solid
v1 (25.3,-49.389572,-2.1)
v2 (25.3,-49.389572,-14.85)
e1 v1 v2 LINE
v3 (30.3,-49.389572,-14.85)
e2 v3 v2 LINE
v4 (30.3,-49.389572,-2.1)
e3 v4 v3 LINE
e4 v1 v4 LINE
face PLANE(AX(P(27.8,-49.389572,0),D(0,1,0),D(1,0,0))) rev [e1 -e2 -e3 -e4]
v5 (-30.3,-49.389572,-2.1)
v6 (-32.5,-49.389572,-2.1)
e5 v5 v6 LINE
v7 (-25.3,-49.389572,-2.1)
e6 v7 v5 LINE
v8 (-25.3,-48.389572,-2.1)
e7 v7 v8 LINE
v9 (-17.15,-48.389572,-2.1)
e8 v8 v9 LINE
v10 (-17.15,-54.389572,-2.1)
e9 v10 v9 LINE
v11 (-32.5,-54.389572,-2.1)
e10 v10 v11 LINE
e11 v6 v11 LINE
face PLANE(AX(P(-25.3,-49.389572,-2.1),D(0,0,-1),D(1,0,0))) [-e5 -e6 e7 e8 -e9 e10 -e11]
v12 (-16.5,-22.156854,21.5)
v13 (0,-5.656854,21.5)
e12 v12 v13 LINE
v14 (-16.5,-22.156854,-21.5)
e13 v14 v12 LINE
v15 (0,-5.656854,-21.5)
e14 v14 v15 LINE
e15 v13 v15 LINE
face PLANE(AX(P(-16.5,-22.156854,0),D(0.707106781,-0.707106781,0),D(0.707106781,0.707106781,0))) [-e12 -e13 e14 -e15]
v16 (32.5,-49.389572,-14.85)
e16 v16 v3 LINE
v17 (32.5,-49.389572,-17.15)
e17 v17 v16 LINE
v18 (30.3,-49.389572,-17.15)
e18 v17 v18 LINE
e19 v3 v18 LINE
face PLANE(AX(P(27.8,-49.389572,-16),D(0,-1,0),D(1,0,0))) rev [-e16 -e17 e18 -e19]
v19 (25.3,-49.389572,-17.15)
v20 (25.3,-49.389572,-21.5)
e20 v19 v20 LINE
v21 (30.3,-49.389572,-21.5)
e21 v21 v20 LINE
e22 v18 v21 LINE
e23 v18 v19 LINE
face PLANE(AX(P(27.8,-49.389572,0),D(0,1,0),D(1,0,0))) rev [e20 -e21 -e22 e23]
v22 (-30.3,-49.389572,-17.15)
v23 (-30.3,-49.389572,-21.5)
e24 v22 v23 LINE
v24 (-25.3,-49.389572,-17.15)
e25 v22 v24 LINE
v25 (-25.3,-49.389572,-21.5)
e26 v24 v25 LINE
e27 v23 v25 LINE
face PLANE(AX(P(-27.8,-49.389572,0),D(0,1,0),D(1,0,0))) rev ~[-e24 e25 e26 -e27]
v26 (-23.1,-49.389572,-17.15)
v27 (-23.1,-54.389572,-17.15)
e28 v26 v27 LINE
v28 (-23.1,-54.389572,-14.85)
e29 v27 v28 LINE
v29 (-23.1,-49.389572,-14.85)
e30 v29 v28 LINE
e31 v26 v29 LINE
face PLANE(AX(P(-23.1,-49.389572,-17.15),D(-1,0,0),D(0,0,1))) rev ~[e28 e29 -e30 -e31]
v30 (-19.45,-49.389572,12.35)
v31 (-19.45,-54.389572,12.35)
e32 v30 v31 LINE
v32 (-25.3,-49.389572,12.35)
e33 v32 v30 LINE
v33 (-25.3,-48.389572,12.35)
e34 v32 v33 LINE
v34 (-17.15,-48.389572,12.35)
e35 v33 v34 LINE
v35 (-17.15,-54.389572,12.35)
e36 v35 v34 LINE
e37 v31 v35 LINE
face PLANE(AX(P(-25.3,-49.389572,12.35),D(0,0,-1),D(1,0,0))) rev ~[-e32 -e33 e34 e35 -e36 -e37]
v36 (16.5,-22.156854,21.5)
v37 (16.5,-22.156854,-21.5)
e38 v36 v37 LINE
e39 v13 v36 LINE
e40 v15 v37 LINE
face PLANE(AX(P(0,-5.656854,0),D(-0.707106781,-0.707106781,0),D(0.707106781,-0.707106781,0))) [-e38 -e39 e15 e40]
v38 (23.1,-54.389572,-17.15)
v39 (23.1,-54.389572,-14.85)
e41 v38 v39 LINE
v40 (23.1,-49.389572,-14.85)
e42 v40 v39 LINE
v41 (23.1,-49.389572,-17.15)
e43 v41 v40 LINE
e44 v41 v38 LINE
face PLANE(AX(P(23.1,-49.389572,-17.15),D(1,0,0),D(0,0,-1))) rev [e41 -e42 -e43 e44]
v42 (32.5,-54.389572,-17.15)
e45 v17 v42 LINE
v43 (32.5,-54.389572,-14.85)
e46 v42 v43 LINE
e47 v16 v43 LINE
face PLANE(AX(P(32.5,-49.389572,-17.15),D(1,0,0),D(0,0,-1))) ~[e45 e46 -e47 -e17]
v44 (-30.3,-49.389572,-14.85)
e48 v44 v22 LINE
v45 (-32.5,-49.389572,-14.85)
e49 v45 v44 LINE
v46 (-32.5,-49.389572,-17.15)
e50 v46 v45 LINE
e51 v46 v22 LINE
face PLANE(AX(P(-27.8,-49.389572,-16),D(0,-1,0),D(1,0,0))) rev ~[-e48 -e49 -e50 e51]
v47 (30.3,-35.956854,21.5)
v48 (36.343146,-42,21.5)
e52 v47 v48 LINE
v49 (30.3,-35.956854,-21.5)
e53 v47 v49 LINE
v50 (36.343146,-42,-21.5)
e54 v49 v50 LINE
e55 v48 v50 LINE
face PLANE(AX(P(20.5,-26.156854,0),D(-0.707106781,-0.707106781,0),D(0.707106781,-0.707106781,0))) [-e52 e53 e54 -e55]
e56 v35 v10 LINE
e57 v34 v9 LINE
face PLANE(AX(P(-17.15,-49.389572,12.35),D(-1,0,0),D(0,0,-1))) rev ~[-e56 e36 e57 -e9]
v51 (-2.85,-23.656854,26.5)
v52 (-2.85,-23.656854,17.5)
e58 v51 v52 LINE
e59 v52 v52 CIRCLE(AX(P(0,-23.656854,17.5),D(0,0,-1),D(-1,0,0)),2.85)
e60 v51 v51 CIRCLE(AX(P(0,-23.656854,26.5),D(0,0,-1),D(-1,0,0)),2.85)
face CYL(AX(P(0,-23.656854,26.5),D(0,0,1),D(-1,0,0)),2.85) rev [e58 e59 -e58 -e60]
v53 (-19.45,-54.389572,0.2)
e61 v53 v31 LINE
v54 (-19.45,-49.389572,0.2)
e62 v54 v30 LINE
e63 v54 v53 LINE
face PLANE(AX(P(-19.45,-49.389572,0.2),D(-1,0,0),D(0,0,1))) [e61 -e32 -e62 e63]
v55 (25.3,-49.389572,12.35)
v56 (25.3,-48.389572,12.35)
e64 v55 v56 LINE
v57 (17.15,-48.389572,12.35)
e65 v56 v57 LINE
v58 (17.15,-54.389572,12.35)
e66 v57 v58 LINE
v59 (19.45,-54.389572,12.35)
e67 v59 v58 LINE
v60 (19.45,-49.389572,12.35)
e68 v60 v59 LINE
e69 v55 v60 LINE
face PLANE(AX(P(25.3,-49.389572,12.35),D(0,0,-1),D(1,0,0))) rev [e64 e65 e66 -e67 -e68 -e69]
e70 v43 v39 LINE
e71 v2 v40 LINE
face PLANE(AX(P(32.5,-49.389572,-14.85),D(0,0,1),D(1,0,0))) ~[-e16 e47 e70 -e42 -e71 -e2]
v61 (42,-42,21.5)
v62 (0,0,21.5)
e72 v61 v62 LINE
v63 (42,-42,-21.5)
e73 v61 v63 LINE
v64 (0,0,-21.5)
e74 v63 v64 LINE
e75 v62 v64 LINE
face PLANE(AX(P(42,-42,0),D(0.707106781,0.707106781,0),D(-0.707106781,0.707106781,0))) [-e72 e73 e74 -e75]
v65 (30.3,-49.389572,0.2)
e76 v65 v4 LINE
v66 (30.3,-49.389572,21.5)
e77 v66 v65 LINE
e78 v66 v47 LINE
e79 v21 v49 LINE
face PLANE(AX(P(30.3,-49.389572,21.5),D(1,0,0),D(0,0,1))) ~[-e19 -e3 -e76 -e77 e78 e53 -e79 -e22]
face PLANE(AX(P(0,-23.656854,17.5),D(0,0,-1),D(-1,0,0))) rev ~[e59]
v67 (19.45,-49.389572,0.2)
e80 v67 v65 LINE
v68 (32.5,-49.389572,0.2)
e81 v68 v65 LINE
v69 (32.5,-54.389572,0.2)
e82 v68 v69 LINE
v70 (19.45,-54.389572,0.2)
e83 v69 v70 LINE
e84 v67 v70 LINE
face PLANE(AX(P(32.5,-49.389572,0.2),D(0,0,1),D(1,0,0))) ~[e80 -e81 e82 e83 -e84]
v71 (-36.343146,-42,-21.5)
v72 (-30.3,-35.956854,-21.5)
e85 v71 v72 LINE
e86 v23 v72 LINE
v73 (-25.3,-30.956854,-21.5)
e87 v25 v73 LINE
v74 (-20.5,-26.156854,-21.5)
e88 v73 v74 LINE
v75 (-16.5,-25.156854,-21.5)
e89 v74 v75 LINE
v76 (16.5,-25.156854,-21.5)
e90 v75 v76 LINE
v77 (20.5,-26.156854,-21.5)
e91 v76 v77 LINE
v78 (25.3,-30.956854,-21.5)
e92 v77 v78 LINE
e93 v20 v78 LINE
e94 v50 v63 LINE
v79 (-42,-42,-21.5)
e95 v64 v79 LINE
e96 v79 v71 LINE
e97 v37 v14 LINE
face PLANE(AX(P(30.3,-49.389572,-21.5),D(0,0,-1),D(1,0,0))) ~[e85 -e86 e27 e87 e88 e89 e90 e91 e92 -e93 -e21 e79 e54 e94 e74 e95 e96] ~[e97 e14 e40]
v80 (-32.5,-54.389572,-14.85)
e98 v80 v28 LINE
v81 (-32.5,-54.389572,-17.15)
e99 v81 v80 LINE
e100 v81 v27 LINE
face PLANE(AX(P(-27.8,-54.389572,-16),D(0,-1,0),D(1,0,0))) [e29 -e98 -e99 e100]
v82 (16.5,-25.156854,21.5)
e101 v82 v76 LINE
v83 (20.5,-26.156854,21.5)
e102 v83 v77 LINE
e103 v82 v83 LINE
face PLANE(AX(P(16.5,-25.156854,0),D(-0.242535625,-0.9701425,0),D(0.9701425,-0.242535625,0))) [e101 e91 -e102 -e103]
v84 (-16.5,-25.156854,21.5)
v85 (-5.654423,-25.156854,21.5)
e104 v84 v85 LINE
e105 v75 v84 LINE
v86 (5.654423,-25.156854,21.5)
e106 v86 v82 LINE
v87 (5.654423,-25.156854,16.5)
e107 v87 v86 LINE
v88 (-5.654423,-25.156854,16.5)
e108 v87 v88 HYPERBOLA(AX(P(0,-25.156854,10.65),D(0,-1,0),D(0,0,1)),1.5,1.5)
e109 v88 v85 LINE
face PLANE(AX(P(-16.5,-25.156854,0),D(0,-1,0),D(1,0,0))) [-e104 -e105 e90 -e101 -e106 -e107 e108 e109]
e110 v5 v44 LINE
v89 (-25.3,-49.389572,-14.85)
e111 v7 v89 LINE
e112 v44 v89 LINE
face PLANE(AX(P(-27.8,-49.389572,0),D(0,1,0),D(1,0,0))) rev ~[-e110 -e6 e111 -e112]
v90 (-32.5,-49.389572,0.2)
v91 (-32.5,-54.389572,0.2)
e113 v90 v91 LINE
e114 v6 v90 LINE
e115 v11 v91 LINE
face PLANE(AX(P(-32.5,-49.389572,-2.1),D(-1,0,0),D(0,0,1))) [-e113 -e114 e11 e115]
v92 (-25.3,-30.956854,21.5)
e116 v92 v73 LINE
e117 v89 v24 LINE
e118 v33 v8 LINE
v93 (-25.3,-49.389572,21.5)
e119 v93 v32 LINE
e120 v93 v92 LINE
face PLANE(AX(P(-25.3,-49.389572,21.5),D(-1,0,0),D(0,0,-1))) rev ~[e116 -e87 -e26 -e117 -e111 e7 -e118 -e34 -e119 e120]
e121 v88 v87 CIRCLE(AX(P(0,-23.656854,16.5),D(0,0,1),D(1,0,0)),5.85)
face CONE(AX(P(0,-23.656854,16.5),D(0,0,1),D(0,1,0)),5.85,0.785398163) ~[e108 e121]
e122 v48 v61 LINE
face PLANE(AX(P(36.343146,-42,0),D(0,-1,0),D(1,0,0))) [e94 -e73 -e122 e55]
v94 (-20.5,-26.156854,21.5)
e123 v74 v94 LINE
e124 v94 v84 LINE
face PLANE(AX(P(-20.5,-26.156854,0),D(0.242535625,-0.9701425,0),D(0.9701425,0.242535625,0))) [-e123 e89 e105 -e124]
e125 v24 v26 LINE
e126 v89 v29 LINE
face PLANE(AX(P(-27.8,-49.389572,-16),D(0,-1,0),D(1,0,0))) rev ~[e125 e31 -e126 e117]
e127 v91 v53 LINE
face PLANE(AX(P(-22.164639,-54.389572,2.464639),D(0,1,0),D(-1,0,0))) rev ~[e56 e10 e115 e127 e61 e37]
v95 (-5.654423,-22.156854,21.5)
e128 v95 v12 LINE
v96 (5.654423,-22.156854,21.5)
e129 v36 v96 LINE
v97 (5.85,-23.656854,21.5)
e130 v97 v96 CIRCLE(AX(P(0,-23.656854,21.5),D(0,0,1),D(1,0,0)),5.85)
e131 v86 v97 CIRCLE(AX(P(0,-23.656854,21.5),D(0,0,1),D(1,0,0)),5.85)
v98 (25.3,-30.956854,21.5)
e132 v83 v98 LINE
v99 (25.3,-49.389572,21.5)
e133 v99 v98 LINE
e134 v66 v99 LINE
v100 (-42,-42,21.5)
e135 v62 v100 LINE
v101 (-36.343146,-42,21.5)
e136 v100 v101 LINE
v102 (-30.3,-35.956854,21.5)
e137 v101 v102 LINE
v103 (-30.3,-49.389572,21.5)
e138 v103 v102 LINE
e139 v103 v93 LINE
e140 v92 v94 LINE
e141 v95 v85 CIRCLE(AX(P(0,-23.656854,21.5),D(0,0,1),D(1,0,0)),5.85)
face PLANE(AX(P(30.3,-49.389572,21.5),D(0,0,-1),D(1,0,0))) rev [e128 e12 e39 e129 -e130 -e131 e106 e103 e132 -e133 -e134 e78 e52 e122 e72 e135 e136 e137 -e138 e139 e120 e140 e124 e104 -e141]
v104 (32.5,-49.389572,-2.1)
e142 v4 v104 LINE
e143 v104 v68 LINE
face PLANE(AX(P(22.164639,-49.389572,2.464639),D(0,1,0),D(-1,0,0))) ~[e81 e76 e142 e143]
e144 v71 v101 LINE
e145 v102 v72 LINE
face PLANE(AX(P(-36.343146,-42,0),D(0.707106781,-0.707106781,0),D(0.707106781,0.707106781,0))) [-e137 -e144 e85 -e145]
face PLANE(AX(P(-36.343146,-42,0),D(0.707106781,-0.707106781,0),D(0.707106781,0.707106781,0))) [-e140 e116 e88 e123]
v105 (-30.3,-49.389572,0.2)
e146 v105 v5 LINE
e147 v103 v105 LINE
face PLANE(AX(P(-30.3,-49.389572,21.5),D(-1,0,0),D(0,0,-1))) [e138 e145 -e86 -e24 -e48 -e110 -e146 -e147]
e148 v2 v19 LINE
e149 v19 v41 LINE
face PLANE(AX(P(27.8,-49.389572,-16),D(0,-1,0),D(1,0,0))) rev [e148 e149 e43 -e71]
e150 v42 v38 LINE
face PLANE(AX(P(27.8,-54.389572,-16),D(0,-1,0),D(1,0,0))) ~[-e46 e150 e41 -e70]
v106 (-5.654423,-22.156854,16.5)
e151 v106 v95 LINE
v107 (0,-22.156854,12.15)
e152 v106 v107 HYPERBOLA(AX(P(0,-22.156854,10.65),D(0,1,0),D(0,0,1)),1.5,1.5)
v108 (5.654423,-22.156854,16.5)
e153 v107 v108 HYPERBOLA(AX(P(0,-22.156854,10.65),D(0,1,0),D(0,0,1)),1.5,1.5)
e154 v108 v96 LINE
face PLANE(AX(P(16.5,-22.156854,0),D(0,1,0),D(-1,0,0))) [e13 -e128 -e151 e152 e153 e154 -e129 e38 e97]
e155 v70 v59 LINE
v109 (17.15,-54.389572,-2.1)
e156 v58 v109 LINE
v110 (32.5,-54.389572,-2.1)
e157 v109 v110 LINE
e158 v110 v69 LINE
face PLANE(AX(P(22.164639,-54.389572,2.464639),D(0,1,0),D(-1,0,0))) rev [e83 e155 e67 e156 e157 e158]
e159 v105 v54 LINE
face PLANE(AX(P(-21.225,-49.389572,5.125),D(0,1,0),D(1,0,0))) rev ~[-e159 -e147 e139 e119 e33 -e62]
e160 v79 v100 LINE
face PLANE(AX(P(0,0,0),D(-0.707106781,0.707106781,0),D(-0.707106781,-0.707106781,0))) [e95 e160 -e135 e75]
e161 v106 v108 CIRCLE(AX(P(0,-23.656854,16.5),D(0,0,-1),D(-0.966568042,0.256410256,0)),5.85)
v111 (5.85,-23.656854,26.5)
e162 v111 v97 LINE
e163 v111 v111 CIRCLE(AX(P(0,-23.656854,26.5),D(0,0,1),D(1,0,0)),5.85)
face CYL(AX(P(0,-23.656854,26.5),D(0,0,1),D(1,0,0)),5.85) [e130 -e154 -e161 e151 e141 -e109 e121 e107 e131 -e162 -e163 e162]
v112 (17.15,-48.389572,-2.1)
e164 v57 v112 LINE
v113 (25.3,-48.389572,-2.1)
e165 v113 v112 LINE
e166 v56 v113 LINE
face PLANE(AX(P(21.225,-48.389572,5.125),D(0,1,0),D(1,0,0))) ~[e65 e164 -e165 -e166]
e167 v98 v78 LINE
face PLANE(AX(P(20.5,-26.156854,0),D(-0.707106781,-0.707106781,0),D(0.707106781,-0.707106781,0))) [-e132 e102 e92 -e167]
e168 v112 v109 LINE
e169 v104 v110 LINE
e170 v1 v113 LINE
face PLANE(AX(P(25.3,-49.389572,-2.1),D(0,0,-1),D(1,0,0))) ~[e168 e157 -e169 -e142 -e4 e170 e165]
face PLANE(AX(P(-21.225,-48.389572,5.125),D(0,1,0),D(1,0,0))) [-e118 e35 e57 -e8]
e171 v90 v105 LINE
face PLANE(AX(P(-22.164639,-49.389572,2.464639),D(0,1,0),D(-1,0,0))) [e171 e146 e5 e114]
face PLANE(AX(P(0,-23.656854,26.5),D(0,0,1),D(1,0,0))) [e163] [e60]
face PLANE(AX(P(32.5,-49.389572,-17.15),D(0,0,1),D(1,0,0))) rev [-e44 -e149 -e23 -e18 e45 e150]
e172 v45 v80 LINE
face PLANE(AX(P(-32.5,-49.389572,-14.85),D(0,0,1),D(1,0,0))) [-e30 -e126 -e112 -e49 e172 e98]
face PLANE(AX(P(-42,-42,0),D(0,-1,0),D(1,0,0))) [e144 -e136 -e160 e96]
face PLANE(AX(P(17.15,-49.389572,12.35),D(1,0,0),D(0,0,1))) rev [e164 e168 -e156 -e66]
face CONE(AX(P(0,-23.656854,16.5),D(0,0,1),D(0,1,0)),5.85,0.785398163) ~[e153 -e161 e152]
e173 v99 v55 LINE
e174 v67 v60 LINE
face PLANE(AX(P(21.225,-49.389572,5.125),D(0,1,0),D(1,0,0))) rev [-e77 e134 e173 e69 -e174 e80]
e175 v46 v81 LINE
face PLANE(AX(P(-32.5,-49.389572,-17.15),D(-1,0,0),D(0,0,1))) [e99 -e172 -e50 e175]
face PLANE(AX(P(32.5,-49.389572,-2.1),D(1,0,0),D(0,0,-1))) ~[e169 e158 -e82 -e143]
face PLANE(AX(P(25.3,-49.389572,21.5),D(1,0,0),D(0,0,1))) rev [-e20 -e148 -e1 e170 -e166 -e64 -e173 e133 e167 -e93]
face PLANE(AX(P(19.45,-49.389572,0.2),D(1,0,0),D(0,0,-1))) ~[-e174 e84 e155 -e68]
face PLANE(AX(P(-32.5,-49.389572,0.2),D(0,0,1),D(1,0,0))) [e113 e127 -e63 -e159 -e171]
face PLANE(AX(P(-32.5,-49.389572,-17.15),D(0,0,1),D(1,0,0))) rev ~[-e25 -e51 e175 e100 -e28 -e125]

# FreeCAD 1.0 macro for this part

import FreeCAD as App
import Part
import Sketcher
from FreeCAD import Vector


def add_polygon(sketch, points):
    """Adds a closed chain of lines whose ends are joined by coincident constraints."""
    first, n = sketch.GeometryCount, len(points)
    for a, b in zip(points, points[1:] + points[:1]):
        sketch.addGeometry(Part.LineSegment(App.Vector(*a, 0), App.Vector(*b, 0)), False)
    for i in range(n):
        sketch.addConstraint(Sketcher.Constraint("Coincident", first + i, 2, first + (i + 1) % n, 1))

doc = App.newDocument("Part")
body = doc.addObject("PartDesign::Body", "Body")

# Sketch on XY plane
sketch1 = body.newObject("Sketcher::SketchObject", "Sketch")
sketch1.AttachmentSupport = (doc.getObject("XY_Plane"), [""])
sketch1.MapMode = "FlatFace"
add_polygon(sketch1, [(0, 0), (-42, -42), (-36.3, -42), (-20.5, -26.2), (-16.5, -25.2), (16.5, -25.2), (20.5, -26.2), (36.3, -42), (42, -42)])  # lines 0-8
add_polygon(sketch1, [(16.5, -22.2), (-16.5, -22.2), (0, -5.7)])  # lines 9-11
sketch1.addConstraint(Sketcher.Constraint("Horizontal", 1))
sketch1.addConstraint(Sketcher.Constraint("Horizontal", 4))
sketch1.addConstraint(Sketcher.Constraint("Horizontal", 7))
sketch1.addConstraint(Sketcher.Constraint("Horizontal", 9))
sketch1.addConstraint(Sketcher.Constraint("Coincident", 8, 2, -1, 1))
sketch1.addConstraint(Sketcher.Constraint("Symmetric", 2, 2, 5, 2, -2))
sketch1.addConstraint(Sketcher.Constraint("Symmetric", 1, 2, 6, 2, -2))
sketch1.addConstraint(Sketcher.Constraint("PointOnObject", 10, 2, -2))
sketch1.addConstraint(Sketcher.Constraint("Parallel", 0, 2))
sketch1.addConstraint(Sketcher.Constraint("Perpendicular", 2, 6))
sketch1.addConstraint(Sketcher.Constraint("Parallel", 6, 8))
sketch1.addConstraint(Sketcher.Constraint("Perpendicular", 8, 10))
sketch1.addConstraint(Sketcher.Constraint("Perpendicular", 10, 11))
sketch1.addConstraint(Sketcher.Constraint("Vertical", 3, 2, 9, 2))
sketch1.addConstraint(Sketcher.Constraint("Vertical", 4, 2, 11, 2))
sketch1.addConstraint(Sketcher.Constraint("DistanceX", 4, 1, 4, 2, 33.0))
sketch1.addConstraint(Sketcher.Constraint("DistanceX", 0, 2, -1, 1, 42.0))
sketch1.addConstraint(Sketcher.Constraint("DistanceX", 2, 2, 3, 2, 4.0))
sketch1.addConstraint(Sketcher.Constraint("DistanceY", 2, 2, 3, 2, 1.0))
sketch1.addConstraint(Sketcher.Constraint("DistanceY", 3, 2, 9, 2, 3.0))
sketch1.addConstraint(Sketcher.Constraint("Distance", 2, 22.405592))
pad1 = body.newObject("PartDesign::Pad", "Pad")
pad1.Profile = sketch1
pad1.Length = 43
pad1.Midplane = True

# Sketch on XY plane
sketch2 = body.newObject("Sketcher::SketchObject", "Sketch001")
sketch2.AttachmentSupport = (doc.getObject("XY_Plane"), [""])
sketch2.MapMode = "FlatFace"
sketch2.AttachmentOffset = App.Placement(Vector(0, 0, 26.5), App.Rotation())
sketch2.addGeometry(Part.Circle(Vector(0, -24, 0), Vector(0, 0, 1), 6), False)
sketch2.addConstraint(Sketcher.Constraint("PointOnObject", 0, 3, -2))
sketch2.addConstraint(Sketcher.Constraint("Diameter", 0, 11.7))
sketch2.addConstraint(Sketcher.Constraint("DistanceY", 0, 3, -1, 1, 23.656854))
pad2 = body.newObject("PartDesign::Pad", "Pad001")
pad2.Profile = sketch2
pad2.Length = 10
pad2.Reversed = True

# Sketch on XY plane
sketch3 = body.newObject("Sketcher::SketchObject", "Sketch002")
sketch3.AttachmentSupport = (doc.getObject("XY_Plane"), [""])
sketch3.MapMode = "FlatFace"
sketch3.AttachmentOffset = App.Placement(Vector(0, 0, 26.5), App.Rotation())
sketch3.addGeometry(Part.Circle(Vector(0, -23.7, 0), Vector(0, 0, 1), 2.9), False)
sketch3.addConstraint(Sketcher.Constraint("PointOnObject", 0, 3, -2))
sketch3.addConstraint(Sketcher.Constraint("Diameter", 0, 5.7))
sketch3.addConstraint(Sketcher.Constraint("DistanceY", 0, 3, -1, 1, 23.656854))
pocket1 = body.newObject("PartDesign::Pocket", "Pocket")
pocket1.Profile = sketch3
pocket1.Length = 9

# Sketch on XZ plane
sketch4 = body.newObject("Sketcher::SketchObject", "Sketch003")
sketch4.AttachmentSupport = (doc.getObject("XZ_Plane"), [""])
sketch4.MapMode = "FlatFace"
sketch4.AttachmentOffset = App.Placement(Vector(0, 0, 49.389572), App.Rotation())
add_polygon(sketch4, [(-30, -22), (-30, 22), (-25, 22), (-25, -22)])  # lines 0-3
sketch4.addConstraint(Sketcher.Constraint("Vertical", 0))
sketch4.addConstraint(Sketcher.Constraint("Horizontal", 1))
sketch4.addConstraint(Sketcher.Constraint("Vertical", 2))
sketch4.addConstraint(Sketcher.Constraint("Horizontal", 3))
sketch4.addConstraint(Sketcher.Constraint("DistanceX", 1, 1, 1, 2, 5.0))
sketch4.addConstraint(Sketcher.Constraint("DistanceY", 0, 1, 0, 2, 43.0))
sketch4.addConstraint(Sketcher.Constraint("DistanceX", 0, 2, -1, 1, 30.3))
sketch4.addConstraint(Sketcher.Constraint("DistanceY", -1, 1, 0, 2, 21.5))
pad3 = body.newObject("PartDesign::Pad", "Pad002")
pad3.Profile = sketch4
pad3.Length = 18.432718
pad3.Reversed = True

# Sketch on XZ plane
sketch5 = body.newObject("Sketcher::SketchObject", "Sketch004")
sketch5.AttachmentSupport = (doc.getObject("XZ_Plane"), [""])
sketch5.MapMode = "FlatFace"
sketch5.AttachmentOffset = App.Placement(Vector(0, 0, 49.389572), App.Rotation())
add_polygon(sketch5, [(-17.1, -2.1), (-17.1, 12.3), (-19.4, 12.3), (-19.4, 0.2), (-32.5, 0.2), (-32.5, -2.1)])  # lines 0-5
add_polygon(sketch5, [(-32.5, -14.8), (-32.5, -17.1), (-23.1, -17.1), (-23.1, -14.8)])  # lines 6-9
sketch5.addConstraint(Sketcher.Constraint("Vertical", 0))
sketch5.addConstraint(Sketcher.Constraint("Horizontal", 1))
sketch5.addConstraint(Sketcher.Constraint("Vertical", 2))
sketch5.addConstraint(Sketcher.Constraint("Horizontal", 3))
sketch5.addConstraint(Sketcher.Constraint("Vertical", 4))
sketch5.addConstraint(Sketcher.Constraint("Horizontal", 5))
sketch5.addConstraint(Sketcher.Constraint("Vertical", 6))
sketch5.addConstraint(Sketcher.Constraint("Horizontal", 7))
sketch5.addConstraint(Sketcher.Constraint("Vertical", 8))
sketch5.addConstraint(Sketcher.Constraint("Horizontal", 9))
sketch5.addConstraint(Sketcher.Constraint("Vertical", 4, 2, 6, 2))
sketch5.addConstraint(Sketcher.Constraint("Equal", 1, 4))
sketch5.addConstraint(Sketcher.Constraint("Equal", 4, 6))
sketch5.addConstraint(Sketcher.Constraint("DistanceX", 1, 2, 1, 1, 2.3))
sketch5.addConstraint(Sketcher.Constraint("DistanceX", 7, 1, 7, 2, 9.4))
sketch5.addConstraint(Sketcher.Constraint("DistanceX", 3, 2, 3, 1, 13.05))
sketch5.addConstraint(Sketcher.Constraint("DistanceY", 0, 1, 0, 2, 14.45))
sketch5.addConstraint(Sketcher.Constraint("DistanceY", -1, 1, 2, 2, 0.2))
sketch5.addConstraint(Sketcher.Constraint("DistanceX", 3, 2, -1, 1, 32.5))
sketch5.addConstraint(Sketcher.Constraint("DistanceY", 6, 2, 1, 2, 29.5))
pad4 = body.newObject("PartDesign::Pad", "Pad003")
pad4.Profile = sketch5
pad4.Length = 5

# Sketch on XZ plane
sketch6 = body.newObject("Sketcher::SketchObject", "Sketch005")
sketch6.AttachmentSupport = (doc.getObject("XZ_Plane"), [""])
sketch6.MapMode = "FlatFace"
sketch6.AttachmentOffset = App.Placement(Vector(0, 0, 49.389572), App.Rotation())
add_polygon(sketch6, [(-25, -2), (-25, 12), (-17, 12), (-17, -2)])  # lines 0-3
sketch6.addConstraint(Sketcher.Constraint("Vertical", 0))
sketch6.addConstraint(Sketcher.Constraint("Horizontal", 1))
sketch6.addConstraint(Sketcher.Constraint("Vertical", 2))
sketch6.addConstraint(Sketcher.Constraint("Horizontal", 3))
sketch6.addConstraint(Sketcher.Constraint("DistanceX", 1, 1, 1, 2, 8.15))
sketch6.addConstraint(Sketcher.Constraint("DistanceY", 0, 1, 0, 2, 14.45))
sketch6.addConstraint(Sketcher.Constraint("DistanceX", 0, 2, -1, 1, 25.3))
sketch6.addConstraint(Sketcher.Constraint("DistanceY", 2, 2, -1, 1, 2.1))
pad5 = body.newObject("PartDesign::Pad", "Pad004")
pad5.Profile = sketch6
pad5.Length = 1
pad5.Reversed = True
doc.recompute()

mirrored = body.newObject("PartDesign::Mirrored", "Mirrored")
mirrored.Originals = [pad3, pad4, pad5]
mirrored.MirrorPlane = (doc.getObject("YZ_Plane"), [""])
body.Tip = mirrored

# Sketch on YZ plane
sketch7 = body.newObject("Sketcher::SketchObject", "Sketch006")
sketch7.AttachmentSupport = (doc.getObject("YZ_Plane"), [""])
sketch7.MapMode = "FlatFace"
add_polygon(sketch7, [(-24, 11), (-18, 16), (-24, 16)])  # lines 0-2
sketch7.addGeometry(Part.LineSegment(Vector(-24, 11, 0), Vector(-24, 16, 0)), True)  # axis
sketch7.addConstraint(Sketcher.Constraint("Horizontal", 1))
sketch7.addConstraint(Sketcher.Constraint("Vertical", 2))
sketch7.addConstraint(Sketcher.Constraint("Vertical", 3))
sketch7.addConstraint(Sketcher.Constraint("Coincident", 3, 1, 2, 2))
sketch7.addConstraint(Sketcher.Constraint("Horizontal", 0, 2, 3, 2))
sketch7.addConstraint(Sketcher.Constraint("Equal", 1, 2))
sketch7.addConstraint(Sketcher.Constraint("DistanceX", 1, 2, 1, 1, 5.85))
sketch7.addConstraint(Sketcher.Constraint("DistanceY", -1, 1, 0, 2, 16.5))
sketch7.addConstraint(Sketcher.Constraint("DistanceX", 0, 2, -1, 1, 17.806854))
revolution = body.newObject("PartDesign::Revolution", "Revolution")
revolution.Profile = sketch7
revolution.ReferenceAxis = (sketch7, ["Axis0"])
revolution.Angle = 360

doc.recompute()
